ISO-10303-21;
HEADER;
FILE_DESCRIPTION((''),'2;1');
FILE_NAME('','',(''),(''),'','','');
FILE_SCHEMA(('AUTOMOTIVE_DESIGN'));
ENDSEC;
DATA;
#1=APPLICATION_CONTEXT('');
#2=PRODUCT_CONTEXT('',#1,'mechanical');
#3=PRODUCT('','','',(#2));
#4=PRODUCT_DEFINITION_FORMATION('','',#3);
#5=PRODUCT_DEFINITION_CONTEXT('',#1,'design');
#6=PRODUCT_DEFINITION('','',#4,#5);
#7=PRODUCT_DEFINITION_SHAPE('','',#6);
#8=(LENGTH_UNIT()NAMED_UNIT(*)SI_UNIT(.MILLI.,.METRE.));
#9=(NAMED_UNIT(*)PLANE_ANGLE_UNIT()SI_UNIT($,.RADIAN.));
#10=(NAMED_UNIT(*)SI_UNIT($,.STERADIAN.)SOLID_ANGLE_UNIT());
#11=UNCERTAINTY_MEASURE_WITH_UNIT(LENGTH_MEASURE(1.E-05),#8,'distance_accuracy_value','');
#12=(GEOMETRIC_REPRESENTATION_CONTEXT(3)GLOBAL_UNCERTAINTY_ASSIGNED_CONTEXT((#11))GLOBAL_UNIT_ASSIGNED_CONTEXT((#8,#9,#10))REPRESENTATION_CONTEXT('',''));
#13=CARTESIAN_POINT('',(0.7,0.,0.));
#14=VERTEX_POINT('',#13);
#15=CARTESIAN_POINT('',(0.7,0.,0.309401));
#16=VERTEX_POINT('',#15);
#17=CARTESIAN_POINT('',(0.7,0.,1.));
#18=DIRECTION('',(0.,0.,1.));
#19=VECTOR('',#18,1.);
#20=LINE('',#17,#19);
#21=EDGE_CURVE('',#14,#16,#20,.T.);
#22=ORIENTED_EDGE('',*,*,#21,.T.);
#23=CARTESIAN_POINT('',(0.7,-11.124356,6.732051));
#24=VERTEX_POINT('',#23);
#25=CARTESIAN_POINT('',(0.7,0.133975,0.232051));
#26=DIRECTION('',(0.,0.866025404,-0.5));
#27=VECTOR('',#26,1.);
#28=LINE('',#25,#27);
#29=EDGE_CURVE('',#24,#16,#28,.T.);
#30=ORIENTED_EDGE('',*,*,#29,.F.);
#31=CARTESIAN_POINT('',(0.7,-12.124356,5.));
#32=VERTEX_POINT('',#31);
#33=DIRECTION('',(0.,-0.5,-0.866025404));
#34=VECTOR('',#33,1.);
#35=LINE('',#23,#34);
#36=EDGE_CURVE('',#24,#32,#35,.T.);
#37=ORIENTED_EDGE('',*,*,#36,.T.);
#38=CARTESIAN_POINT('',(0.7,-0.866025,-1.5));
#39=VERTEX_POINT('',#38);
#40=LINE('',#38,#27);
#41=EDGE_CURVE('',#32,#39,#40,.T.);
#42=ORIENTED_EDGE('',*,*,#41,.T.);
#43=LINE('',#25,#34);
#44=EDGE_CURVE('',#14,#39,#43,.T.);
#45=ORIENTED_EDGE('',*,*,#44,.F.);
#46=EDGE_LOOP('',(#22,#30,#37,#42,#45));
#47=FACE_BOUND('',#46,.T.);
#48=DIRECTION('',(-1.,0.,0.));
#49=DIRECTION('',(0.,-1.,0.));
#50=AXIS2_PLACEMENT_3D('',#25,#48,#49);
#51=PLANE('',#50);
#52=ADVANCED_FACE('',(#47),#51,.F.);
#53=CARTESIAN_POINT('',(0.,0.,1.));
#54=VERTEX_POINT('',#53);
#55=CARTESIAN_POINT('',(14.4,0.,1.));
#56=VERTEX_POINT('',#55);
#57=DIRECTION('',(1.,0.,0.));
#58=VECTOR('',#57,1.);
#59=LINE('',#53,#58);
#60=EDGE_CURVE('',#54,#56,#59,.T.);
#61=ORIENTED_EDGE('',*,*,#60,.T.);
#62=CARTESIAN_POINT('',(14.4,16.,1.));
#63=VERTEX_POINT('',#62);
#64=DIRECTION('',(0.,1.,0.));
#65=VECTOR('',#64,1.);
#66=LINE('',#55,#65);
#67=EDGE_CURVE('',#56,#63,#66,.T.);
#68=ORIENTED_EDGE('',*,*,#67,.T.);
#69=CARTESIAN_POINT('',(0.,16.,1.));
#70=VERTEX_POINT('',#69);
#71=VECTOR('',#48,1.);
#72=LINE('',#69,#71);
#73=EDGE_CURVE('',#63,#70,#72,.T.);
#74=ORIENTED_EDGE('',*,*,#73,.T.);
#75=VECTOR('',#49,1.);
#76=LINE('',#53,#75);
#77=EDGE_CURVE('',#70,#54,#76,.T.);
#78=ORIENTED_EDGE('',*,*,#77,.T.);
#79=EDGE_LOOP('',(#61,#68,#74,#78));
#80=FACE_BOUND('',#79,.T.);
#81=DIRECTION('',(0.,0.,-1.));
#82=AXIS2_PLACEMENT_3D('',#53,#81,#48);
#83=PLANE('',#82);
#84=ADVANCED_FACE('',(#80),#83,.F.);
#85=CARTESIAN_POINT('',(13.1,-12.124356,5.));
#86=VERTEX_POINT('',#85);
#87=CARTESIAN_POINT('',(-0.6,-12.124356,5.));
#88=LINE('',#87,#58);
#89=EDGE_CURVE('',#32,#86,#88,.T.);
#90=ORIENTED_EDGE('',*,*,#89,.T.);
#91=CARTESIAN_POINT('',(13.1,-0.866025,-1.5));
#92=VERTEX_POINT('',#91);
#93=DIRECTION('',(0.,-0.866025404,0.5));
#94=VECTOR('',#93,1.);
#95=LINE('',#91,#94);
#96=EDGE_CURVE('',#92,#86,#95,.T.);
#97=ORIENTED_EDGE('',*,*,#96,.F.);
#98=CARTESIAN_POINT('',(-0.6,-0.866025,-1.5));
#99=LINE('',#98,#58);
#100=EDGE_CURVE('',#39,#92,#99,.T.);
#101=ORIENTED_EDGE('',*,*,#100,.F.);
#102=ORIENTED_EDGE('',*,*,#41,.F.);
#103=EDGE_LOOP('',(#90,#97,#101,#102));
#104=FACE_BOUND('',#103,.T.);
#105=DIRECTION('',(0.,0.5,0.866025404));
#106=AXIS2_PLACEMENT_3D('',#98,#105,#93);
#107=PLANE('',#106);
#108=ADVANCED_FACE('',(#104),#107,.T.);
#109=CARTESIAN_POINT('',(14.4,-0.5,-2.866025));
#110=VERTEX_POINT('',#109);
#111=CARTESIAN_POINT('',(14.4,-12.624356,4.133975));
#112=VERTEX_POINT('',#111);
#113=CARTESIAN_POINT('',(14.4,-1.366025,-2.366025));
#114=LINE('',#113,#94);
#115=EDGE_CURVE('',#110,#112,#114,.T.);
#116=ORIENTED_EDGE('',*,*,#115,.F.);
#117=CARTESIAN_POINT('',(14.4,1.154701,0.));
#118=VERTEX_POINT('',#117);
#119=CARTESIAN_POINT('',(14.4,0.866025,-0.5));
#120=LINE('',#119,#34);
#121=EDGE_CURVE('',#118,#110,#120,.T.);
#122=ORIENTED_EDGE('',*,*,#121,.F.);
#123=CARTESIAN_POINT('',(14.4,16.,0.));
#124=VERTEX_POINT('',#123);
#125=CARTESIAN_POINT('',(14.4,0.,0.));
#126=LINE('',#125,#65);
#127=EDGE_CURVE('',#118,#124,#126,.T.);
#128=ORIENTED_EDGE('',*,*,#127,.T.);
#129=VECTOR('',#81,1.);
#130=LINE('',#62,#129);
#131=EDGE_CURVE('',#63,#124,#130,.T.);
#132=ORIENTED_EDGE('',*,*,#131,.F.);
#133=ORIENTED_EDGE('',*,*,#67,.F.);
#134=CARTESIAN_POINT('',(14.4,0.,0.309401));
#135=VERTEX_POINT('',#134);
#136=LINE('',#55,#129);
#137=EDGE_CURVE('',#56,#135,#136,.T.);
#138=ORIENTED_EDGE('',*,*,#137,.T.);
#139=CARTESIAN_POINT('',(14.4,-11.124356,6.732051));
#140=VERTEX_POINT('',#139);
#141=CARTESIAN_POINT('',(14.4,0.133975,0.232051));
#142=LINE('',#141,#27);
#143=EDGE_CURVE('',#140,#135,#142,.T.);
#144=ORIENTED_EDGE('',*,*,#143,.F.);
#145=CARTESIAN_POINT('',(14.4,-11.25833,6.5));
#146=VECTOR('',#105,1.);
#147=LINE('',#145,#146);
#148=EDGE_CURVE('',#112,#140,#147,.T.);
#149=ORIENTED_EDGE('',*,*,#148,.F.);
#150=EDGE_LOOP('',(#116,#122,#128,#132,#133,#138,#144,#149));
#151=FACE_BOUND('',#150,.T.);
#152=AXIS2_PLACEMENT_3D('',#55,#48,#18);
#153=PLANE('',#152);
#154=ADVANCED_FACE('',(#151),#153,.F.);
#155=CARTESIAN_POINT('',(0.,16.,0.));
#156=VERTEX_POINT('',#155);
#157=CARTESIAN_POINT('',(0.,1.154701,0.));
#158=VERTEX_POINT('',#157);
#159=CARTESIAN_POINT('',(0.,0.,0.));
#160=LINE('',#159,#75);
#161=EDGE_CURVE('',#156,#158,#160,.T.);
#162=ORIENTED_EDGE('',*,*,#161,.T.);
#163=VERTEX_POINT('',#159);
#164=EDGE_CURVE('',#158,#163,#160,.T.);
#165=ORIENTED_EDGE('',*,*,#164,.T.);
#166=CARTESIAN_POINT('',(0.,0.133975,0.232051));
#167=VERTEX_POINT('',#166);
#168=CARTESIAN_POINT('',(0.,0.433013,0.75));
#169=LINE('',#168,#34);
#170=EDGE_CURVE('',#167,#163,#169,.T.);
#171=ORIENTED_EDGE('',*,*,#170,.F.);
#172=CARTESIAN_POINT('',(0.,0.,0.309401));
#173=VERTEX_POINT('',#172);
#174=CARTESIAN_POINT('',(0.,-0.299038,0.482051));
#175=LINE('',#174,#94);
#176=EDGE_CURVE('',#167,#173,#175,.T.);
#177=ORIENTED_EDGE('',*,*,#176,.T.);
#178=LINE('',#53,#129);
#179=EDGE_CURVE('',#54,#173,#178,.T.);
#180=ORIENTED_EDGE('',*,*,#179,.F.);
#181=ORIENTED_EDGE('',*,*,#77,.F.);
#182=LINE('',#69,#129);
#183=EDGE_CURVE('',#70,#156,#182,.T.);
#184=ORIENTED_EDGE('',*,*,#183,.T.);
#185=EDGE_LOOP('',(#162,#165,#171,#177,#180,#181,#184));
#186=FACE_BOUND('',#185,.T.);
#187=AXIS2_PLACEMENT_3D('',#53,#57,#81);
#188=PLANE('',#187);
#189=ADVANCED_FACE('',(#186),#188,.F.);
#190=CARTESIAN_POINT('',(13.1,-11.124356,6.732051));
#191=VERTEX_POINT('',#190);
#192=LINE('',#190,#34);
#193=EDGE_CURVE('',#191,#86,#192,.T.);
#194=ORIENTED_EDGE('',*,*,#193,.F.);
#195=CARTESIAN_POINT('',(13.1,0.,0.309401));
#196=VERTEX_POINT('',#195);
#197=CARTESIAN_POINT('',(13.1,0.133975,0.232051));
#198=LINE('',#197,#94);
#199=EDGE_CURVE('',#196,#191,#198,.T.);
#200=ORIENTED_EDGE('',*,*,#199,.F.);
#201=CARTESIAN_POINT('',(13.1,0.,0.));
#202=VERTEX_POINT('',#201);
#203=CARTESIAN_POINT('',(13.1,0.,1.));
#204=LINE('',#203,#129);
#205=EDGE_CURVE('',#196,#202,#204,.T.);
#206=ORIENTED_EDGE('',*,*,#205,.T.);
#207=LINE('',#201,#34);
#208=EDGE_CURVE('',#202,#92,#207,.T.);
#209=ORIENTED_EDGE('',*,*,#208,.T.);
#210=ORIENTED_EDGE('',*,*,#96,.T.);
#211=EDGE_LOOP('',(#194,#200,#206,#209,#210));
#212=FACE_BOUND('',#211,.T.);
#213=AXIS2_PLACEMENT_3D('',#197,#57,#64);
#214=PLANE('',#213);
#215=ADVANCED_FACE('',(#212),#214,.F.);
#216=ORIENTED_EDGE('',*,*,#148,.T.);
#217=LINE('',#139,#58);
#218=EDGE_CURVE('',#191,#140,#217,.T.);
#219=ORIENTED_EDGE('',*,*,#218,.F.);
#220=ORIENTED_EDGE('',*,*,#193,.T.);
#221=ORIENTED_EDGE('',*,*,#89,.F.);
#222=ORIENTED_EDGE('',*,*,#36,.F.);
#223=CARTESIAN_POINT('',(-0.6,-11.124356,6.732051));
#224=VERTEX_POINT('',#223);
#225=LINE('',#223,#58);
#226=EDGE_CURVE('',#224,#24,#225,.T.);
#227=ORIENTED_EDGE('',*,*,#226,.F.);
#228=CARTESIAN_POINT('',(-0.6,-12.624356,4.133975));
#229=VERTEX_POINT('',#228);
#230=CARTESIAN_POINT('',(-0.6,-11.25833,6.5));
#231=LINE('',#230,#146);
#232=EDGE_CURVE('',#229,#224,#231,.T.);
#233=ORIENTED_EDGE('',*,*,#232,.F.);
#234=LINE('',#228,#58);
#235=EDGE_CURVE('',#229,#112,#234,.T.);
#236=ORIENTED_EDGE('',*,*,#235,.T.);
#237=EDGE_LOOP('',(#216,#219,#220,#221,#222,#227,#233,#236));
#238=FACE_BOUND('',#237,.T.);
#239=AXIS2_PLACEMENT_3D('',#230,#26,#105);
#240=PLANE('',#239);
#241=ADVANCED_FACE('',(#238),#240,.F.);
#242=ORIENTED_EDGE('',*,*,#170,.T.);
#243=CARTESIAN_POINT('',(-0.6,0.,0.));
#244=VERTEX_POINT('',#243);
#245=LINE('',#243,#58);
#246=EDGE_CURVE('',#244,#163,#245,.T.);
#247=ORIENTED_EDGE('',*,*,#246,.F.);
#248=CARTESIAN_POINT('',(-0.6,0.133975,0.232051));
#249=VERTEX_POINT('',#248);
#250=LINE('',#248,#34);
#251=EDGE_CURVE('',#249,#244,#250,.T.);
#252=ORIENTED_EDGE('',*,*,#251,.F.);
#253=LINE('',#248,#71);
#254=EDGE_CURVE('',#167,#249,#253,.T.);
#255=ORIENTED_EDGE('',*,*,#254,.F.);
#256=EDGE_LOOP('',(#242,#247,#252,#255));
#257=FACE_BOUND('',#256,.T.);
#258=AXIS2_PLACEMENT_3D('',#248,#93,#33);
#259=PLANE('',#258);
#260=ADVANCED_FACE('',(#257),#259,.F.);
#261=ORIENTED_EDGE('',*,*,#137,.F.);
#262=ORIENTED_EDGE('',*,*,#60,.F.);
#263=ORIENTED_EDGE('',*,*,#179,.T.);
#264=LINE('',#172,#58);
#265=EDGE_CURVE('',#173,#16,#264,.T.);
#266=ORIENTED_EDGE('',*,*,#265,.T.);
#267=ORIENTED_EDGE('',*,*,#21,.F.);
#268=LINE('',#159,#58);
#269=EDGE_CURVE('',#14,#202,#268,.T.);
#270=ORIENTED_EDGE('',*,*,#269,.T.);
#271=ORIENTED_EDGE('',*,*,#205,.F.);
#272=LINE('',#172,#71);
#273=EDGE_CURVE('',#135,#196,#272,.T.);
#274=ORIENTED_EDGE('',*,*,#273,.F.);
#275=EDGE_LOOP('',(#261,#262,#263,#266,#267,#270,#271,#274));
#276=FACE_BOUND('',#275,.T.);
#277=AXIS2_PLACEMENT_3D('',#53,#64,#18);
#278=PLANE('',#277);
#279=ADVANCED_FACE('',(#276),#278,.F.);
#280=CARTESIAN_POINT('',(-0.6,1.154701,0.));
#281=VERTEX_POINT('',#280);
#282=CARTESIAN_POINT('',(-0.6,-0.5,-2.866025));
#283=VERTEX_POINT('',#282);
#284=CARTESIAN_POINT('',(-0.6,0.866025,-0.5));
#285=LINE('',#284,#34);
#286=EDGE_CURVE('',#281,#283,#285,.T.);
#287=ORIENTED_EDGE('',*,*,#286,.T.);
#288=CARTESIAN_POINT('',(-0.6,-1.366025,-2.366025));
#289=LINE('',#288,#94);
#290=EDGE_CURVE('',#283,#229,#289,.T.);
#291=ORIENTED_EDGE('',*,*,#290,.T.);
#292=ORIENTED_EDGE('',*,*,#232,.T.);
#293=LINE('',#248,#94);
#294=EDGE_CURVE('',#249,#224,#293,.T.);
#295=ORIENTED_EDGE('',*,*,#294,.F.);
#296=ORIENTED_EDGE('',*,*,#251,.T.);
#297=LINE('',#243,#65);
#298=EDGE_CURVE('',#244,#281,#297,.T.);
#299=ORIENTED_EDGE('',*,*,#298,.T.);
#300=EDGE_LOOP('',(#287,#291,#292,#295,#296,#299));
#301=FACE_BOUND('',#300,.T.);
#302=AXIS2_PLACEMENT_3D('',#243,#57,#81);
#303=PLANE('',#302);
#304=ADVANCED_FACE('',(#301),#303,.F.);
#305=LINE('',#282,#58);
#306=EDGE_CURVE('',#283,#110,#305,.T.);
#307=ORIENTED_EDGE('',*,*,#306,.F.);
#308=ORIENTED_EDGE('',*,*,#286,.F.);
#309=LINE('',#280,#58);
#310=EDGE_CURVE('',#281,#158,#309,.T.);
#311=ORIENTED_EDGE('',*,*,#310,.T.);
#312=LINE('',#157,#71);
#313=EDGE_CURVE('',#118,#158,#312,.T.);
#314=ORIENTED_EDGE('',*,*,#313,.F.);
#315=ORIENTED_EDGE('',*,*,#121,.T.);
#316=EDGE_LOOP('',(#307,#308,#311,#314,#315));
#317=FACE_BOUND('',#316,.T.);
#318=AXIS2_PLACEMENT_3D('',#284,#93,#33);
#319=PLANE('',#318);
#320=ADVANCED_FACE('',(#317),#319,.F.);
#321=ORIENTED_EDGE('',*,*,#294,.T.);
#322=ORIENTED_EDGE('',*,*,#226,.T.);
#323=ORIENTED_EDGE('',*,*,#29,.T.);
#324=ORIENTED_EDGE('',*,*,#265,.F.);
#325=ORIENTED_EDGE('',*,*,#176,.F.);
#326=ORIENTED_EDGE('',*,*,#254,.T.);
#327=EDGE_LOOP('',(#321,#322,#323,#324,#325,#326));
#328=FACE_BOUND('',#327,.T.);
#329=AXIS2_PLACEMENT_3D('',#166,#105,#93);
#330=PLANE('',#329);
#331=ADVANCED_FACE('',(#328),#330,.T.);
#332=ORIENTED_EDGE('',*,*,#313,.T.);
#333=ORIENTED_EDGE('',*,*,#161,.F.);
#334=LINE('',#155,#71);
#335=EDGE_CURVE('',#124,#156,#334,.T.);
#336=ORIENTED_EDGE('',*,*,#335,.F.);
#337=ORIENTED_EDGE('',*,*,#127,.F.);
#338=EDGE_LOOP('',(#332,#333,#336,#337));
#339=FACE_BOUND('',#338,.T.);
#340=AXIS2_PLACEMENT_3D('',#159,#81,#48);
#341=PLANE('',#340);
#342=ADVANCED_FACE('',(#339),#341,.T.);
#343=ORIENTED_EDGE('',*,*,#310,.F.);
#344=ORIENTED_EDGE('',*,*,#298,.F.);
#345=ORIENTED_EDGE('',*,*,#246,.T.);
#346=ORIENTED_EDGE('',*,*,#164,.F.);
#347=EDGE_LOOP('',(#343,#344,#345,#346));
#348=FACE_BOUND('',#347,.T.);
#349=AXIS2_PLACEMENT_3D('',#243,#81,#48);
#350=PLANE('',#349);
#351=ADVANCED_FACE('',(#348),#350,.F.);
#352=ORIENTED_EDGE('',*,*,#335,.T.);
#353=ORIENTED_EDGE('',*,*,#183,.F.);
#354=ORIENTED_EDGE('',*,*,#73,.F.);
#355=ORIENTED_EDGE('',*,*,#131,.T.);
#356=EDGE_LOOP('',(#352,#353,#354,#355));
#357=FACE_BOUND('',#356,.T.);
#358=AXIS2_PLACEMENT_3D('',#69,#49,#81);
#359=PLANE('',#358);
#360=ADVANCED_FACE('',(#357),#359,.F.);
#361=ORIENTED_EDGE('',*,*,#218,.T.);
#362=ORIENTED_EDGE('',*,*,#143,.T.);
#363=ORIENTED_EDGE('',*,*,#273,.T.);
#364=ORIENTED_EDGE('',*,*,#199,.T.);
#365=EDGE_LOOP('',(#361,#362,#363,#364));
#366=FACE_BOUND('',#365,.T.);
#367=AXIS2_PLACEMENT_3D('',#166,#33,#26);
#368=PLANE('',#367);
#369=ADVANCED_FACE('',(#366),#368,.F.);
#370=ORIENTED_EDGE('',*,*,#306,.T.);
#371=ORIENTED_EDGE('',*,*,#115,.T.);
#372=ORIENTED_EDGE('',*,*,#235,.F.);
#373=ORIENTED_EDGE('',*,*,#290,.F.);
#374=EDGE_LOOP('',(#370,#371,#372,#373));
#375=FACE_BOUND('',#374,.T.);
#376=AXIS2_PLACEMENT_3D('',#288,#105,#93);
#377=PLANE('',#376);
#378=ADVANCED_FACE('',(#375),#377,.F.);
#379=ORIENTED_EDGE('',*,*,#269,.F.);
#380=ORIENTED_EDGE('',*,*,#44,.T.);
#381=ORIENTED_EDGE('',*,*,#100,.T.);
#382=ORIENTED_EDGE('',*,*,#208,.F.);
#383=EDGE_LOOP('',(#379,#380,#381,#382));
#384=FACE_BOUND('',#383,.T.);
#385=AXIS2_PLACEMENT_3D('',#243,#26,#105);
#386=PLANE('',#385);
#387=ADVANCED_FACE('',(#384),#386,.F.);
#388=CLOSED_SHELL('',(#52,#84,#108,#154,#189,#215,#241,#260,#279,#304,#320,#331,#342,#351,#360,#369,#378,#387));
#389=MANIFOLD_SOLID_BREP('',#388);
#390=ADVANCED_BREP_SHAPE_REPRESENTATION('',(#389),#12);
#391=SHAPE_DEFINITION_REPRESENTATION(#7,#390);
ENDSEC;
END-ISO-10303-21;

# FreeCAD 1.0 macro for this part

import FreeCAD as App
import Part
import Sketcher
Q = App.Units.Quantity

doc = App.newDocument("Part")
body = doc.addObject("PartDesign::Body", "Body")

# Sketch on XY plane
sketch1 = body.newObject("Sketcher::SketchObject", "Sketch")
sketch1.AttachmentSupport = (doc.getObject("XY_Plane"), [""])
sketch1.MapMode = "FlatFace"
sketch1.addGeometry([
    Part.LineSegment(App.Vector(0, 16, 0), App.Vector(0, 0, 0)),
    Part.LineSegment(App.Vector(0, 0, 0), App.Vector(14, 0, 0)),
    Part.LineSegment(App.Vector(14, 0, 0), App.Vector(14, 16, 0)),
    Part.LineSegment(App.Vector(14, 16, 0), App.Vector(0, 16, 0)),
], False)
sketch1.addConstraint([
    Sketcher.Constraint("Coincident", 0, 2, 1, 1),
    Sketcher.Constraint("Coincident", 1, 2, 2, 1),
    Sketcher.Constraint("Coincident", 2, 2, 3, 1),
    Sketcher.Constraint("Coincident", 3, 2, 0, 1),
    Sketcher.Constraint("Vertical", 0),
    Sketcher.Constraint("Horizontal", 1),
    Sketcher.Constraint("Vertical", 2),
    Sketcher.Constraint("Horizontal", 3),
    Sketcher.Constraint("Coincident", 0, 2, -1, 1),
    Sketcher.Constraint("DistanceY", 0, 2, 0, 1, Q("16 mm")),
    Sketcher.Constraint("DistanceX", 1, 1, 1, 2, Q("14.4 mm")),
])
pad1 = body.newObject("PartDesign::Pad", "Pad")
pad1.Profile = sketch1
pad1.Length = 1

# Sketch on YZ plane
sketch2 = body.newObject("Sketcher::SketchObject", "Sketch001")
sketch2.AttachmentSupport = (doc.getObject("YZ_Plane"), [""])
sketch2.MapMode = "FlatFace"
sketch2.AttachmentOffset = App.Placement(App.Vector(0, 0, 14.4), App.Rotation())
sketch2.addGeometry([
    Part.LineSegment(App.Vector(1.2, 0, 0), App.Vector(0, 0, 0)),  # 0
    Part.LineSegment(App.Vector(0, 0, 0), App.Vector(-0.9, -1.5, 0)),  # 1
    Part.LineSegment(App.Vector(-0.9, -1.5, 0), App.Vector(-12.1, 5, 0)),  # 2
    Part.LineSegment(App.Vector(-12.1, 5, 0), App.Vector(-12.6, 4.1, 0)),  # 3
    Part.LineSegment(App.Vector(-12.6, 4.1, 0), App.Vector(-0.5, -2.9, 0)),  # 4
    Part.LineSegment(App.Vector(-0.5, -2.9, 0), App.Vector(1.2, 0, 0)),  # 5
], False)
sketch2.addConstraint([
    Sketcher.Constraint("Coincident", 0, 2, 1, 1),
    Sketcher.Constraint("Coincident", 1, 2, 2, 1),
    Sketcher.Constraint("Coincident", 2, 2, 3, 1),
    Sketcher.Constraint("Coincident", 3, 2, 4, 1),
    Sketcher.Constraint("Coincident", 4, 2, 5, 1),
    Sketcher.Constraint("Coincident", 5, 2, 0, 1),
    Sketcher.Constraint("Horizontal", 0),
    Sketcher.Constraint("Coincident", 0, 2, -1, 1),
    Sketcher.Constraint("Perpendicular", 1, 2),
    Sketcher.Constraint("Perpendicular", 2, 3),
    Sketcher.Constraint("Perpendicular", 3, 4),
    Sketcher.Constraint("Perpendicular", 4, 5),
    Sketcher.Constraint("Angle", 1, Q("-120 deg")),
    Sketcher.Constraint("Distance", 2, Q("13 mm")),
    Sketcher.Constraint("Distance", 3, Q("1 mm")),
    Sketcher.Constraint("Distance", 4, Q("14 mm")),
    Sketcher.Constraint("DistanceY", -1, 1, 2, 2, Q("5 mm")),
])
pad2 = body.newObject("PartDesign::Pad", "Pad001")
pad2.Profile = sketch2
pad2.Length = 15
pad2.Reversed = True

# Sketch on an angled plane
sketch3 = body.newObject("Sketcher::SketchObject", "Sketch002")
sketch3.Placement = App.Placement(App.Vector(0, -0.866025, -1.5), App.Rotation(App.Vector(1, 0, 0), App.Vector(0, 0.866025404, -0.5), App.Vector(0, 0.5, 0.866025404), "ZXY"))
sketch3.addGeometry([
    Part.LineSegment(App.Vector(13.1, 0, 0), App.Vector(13.1, -13, 0)),  # 0
    Part.LineSegment(App.Vector(13.1, -13, 0), App.Vector(14.4, -13, 0)),  # 1
    Part.LineSegment(App.Vector(14.4, -13, 0), App.Vector(14.4, 0, 0)),  # 2
    Part.LineSegment(App.Vector(14.4, 0, 0), App.Vector(13.1, 0, 0)),  # 3
    Part.LineSegment(App.Vector(-0.6, 0, 0), App.Vector(-0.6, -13, 0)),  # 4
    Part.LineSegment(App.Vector(-0.6, -13, 0), App.Vector(0.7, -13, 0)),  # 5
    Part.LineSegment(App.Vector(0.7, -13, 0), App.Vector(0.7, 0, 0)),  # 6
    Part.LineSegment(App.Vector(0.7, 0, 0), App.Vector(-0.6, 0, 0)),  # 7
], False)
sketch3.addConstraint([
    Sketcher.Constraint("Coincident", 0, 2, 1, 1),
    Sketcher.Constraint("Coincident", 1, 2, 2, 1),
    Sketcher.Constraint("Coincident", 2, 2, 3, 1),
    Sketcher.Constraint("Coincident", 3, 2, 0, 1),
    Sketcher.Constraint("Coincident", 4, 2, 5, 1),
    Sketcher.Constraint("Coincident", 5, 2, 6, 1),
    Sketcher.Constraint("Coincident", 6, 2, 7, 1),
    Sketcher.Constraint("Coincident", 7, 2, 4, 1),
    Sketcher.Constraint("Vertical", 0),
    Sketcher.Constraint("Horizontal", 1),
    Sketcher.Constraint("Vertical", 2),
    Sketcher.Constraint("Horizontal", 3),
    Sketcher.Constraint("Vertical", 4),
    Sketcher.Constraint("Horizontal", 5),
    Sketcher.Constraint("Vertical", 6),
    Sketcher.Constraint("Horizontal", 7),
    Sketcher.Constraint("PointOnObject", 2, 2, -1),
    Sketcher.Constraint("PointOnObject", 6, 2, -1),
    Sketcher.Constraint("Horizontal", 1, 2, 4, 2),
    Sketcher.Constraint("Equal", 3, 5),
    Sketcher.Constraint("DistanceY", 0, 2, 0, 1, Q("13 mm")),
    Sketcher.Constraint("DistanceX", 1, 1, 1, 2, Q("1.3 mm")),
    Sketcher.Constraint("DistanceX", 4, 2, 1, 2, Q("15 mm")),
    Sketcher.Constraint("DistanceX", -1, 1, 0, 2, Q("13.1 mm")),
])
pad3 = body.newObject("PartDesign::Pad", "Pad002")
pad3.Profile = sketch3
pad3.Length = 2

doc.recompute()
